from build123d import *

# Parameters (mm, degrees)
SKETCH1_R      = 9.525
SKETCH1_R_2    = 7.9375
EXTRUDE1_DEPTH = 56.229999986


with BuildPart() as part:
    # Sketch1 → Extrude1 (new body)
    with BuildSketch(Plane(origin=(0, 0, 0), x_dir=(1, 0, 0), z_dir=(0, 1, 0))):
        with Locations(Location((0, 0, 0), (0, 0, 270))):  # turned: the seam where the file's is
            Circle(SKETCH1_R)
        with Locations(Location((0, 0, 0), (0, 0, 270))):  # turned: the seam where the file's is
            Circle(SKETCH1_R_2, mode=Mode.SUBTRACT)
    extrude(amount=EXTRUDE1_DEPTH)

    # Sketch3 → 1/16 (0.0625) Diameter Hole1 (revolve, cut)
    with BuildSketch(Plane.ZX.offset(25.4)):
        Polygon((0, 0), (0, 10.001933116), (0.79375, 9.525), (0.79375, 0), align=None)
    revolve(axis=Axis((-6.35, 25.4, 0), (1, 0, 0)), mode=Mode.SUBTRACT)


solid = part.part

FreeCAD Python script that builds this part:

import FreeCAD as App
import Part
import Sketcher
from FreeCAD import Vector
Q = App.Units.Quantity

doc = App.newDocument("Part")
body = doc.addObject("PartDesign::Body", "Body")

sketch1 = doc.addObject("Sketcher::SketchObject", "Sketch")
body.addObject(sketch1)
sketch1.AttachmentSupport = (doc.XZ_Plane, [""])
sketch1.MapMode = "FlatFace"
sketch1.addGeometry(Part.Circle(Vector(0, 0, 0), Vector(0, 0, 1), 10), False)
sketch1.addGeometry(Part.Circle(Vector(0, 0, 0), Vector(0, 0, 1), 8), False)
sketch1.addConstraint(Sketcher.Constraint("Coincident", 0, 3, -1, 1))
sketch1.addConstraint(Sketcher.Constraint("Coincident", 1, 3, -1, 1))
sketch1.addConstraint(Sketcher.Constraint("Diameter", 0, Q("0.75 in")))
sketch1.addConstraint(Sketcher.Constraint("Diameter", 1, Q("0.625 in")))
pad1 = doc.addObject("PartDesign::Pad", "Pad")
body.addObject(pad1)
pad1.Profile = sketch1
pad1.Length = 56.23
pad1.Reversed = True

sketch2 = doc.addObject("Sketcher::SketchObject", "Sketch001")
body.addObject(sketch2)
sketch2.AttachmentSupport = (doc.XZ_Plane, [""])
sketch2.MapMode = "FlatFace"
sketch2.AttachmentOffset = App.Placement(Vector(0, 0, -1 * 25.4), App.Rotation())
sketch2.addGeometry(Part.LineSegment(Vector(10, 0, 0), Vector(0, 0, 0)), False)
sketch2.addGeometry(Part.LineSegment(Vector(0, 0, 0), Vector(0, 0.8, 0)), False)
sketch2.addGeometry(Part.LineSegment(Vector(0, 0.8, 0), Vector(9.5, 0.8, 0)), False)
sketch2.addGeometry(Part.LineSegment(Vector(9.5, 0.8, 0), Vector(10, 0, 0)), False)
sketch2.addConstraint(Sketcher.Constraint("Coincident", 0, 2, 1, 1))
sketch2.addConstraint(Sketcher.Constraint("Coincident", 1, 2, 2, 1))
sketch2.addConstraint(Sketcher.Constraint("Coincident", 2, 2, 3, 1))
sketch2.addConstraint(Sketcher.Constraint("Coincident", 3, 2, 0, 1))
sketch2.addConstraint(Sketcher.Constraint("Horizontal", 0))
sketch2.addConstraint(Sketcher.Constraint("Vertical", 1))
sketch2.addConstraint(Sketcher.Constraint("Horizontal", 2))
sketch2.addConstraint(Sketcher.Constraint("Coincident", 0, 2, -1, 1))
sketch2.addConstraint(Sketcher.Constraint("Angle", 3, Q("-59 deg")))
sketch2.addConstraint(Sketcher.Constraint("DistanceX", 2, 1, 2, 2, Q("0.375 in")))
sketch2.addConstraint(Sketcher.Constraint("DistanceY", 1, 1, 1, 2, Q("0.03125 in")))
groove = doc.addObject("PartDesign::Groove", "Groove")
body.addObject(groove)
groove.Profile = sketch2
groove.ReferenceAxis = (sketch2, ["H_Axis"])
groove.Angle = 360

doc.recompute()
